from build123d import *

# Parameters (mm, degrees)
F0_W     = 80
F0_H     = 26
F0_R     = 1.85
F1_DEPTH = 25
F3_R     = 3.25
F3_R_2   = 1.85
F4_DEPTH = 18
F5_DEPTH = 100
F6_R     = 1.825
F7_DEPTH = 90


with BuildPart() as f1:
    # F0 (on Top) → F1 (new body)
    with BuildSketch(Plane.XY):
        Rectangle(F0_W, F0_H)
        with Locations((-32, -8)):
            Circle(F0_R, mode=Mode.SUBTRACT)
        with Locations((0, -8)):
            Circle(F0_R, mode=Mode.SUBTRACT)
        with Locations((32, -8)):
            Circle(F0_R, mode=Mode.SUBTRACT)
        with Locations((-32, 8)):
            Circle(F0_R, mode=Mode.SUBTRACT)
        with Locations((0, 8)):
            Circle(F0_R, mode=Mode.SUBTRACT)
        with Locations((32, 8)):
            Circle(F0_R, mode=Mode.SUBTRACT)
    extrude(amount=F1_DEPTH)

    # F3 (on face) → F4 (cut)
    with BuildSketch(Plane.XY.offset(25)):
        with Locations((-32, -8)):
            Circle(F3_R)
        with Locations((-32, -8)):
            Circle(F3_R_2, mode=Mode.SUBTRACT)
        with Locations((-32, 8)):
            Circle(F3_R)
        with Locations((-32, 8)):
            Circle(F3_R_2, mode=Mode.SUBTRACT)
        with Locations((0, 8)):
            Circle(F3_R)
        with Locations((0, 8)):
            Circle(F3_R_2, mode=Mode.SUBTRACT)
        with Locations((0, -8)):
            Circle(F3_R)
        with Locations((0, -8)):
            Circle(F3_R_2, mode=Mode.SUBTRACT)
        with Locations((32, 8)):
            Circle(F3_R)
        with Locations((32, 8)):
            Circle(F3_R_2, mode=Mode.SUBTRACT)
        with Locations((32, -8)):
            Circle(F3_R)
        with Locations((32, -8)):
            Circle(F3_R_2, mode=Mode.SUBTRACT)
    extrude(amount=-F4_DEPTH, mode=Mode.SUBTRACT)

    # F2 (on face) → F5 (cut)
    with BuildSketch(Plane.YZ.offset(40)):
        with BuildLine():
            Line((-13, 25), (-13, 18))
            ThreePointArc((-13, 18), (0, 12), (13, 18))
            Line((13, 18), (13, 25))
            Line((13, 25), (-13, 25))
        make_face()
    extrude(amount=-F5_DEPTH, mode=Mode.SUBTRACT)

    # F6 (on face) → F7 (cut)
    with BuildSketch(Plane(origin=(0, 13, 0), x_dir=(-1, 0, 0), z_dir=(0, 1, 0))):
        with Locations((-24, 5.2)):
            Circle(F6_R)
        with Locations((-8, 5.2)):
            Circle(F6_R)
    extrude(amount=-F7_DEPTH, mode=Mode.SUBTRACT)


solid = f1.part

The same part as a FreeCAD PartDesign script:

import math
import FreeCAD as App
import Part
import Sketcher
Q = App.Units.Quantity

doc = App.newDocument("Part")
body = doc.addObject("PartDesign::Body", "Body")

# Sketch on XY plane
sketch1 = doc.addObject("Sketcher::SketchObject", "Sketch")
body.addObject(sketch1)
sketch1.AttachmentSupport = (doc.XY_Plane, [""])
sketch1.MapMode = "FlatFace"
sketch1.addGeometry([
    Part.LineSegment(App.Vector(-40, 13, 0), App.Vector(-40, -13, 0)),  # 0
    Part.LineSegment(App.Vector(-40, -13, 0), App.Vector(40, -13, 0)),  # 1
    Part.LineSegment(App.Vector(40, -13, 0), App.Vector(40, 13, 0)),  # 2
    Part.LineSegment(App.Vector(40, 13, 0), App.Vector(-40, 13, 0)),  # 3
    Part.Circle(App.Vector(-32, -8, 0), App.Vector(0, 0, 1), 1.9),  # 4
    Part.Circle(App.Vector(0, -8, 0), App.Vector(0, 0, 1), 1.9),  # 5
    Part.Circle(App.Vector(32, -8, 0), App.Vector(0, 0, 1), 1.9),  # 6
    Part.Circle(App.Vector(-32, 8, 0), App.Vector(0, 0, 1), 1.9),  # 7
    Part.Circle(App.Vector(0, 8, 0), App.Vector(0, 0, 1), 1.9),  # 8
    Part.Circle(App.Vector(32, 8, 0), App.Vector(0, 0, 1), 1.9),  # 9
], False)
sketch1.addConstraint([
    Sketcher.Constraint("Coincident", 0, 2, 1, 1),
    Sketcher.Constraint("Coincident", 1, 2, 2, 1),
    Sketcher.Constraint("Coincident", 2, 2, 3, 1),
    Sketcher.Constraint("Coincident", 3, 2, 0, 1),
    Sketcher.Constraint("Vertical", 0),
    Sketcher.Constraint("Horizontal", 1),
    Sketcher.Constraint("Vertical", 2),
    Sketcher.Constraint("Horizontal", 3),
    Sketcher.Constraint("Equal", 4, 5),
    Sketcher.Constraint("Equal", 5, 6),
    Sketcher.Constraint("Equal", 6, 7),
    Sketcher.Constraint("Equal", 7, 8),
    Sketcher.Constraint("Equal", 8, 9),
    Sketcher.Constraint("Symmetric", 6, 3, 7, 3, -1, 1),
    Sketcher.Constraint("Symmetric", 5, 3, 8, 3, -1, 1),
    Sketcher.Constraint("Symmetric", 4, 3, 9, 3, -1, 1),
    Sketcher.Constraint("Symmetric", 0, 2, 2, 2, -1, 1),
    Sketcher.Constraint("Symmetric", 4, 3, 6, 3, -2),
    Sketcher.Constraint("PointOnObject", 5, 3, -2),
    Sketcher.Constraint("Horizontal", 4, 3, 5, 3),
    Sketcher.Constraint("Diameter", 4, Q("3.7 mm")),
    Sketcher.Constraint("DistanceX", 1, 1, 1, 2, Q("80 mm")),
    Sketcher.Constraint("DistanceY", 0, 2, 0, 1, Q("26 mm")),
    Sketcher.Constraint("DistanceX", 4, 3, -1, 1, Q("32 mm")),
    Sketcher.Constraint("DistanceY", 4, 3, -1, 1, Q("8 mm")),
])
pad1 = doc.addObject("PartDesign::Pad", "Pad")
body.addObject(pad1)
pad1.Profile = sketch1
pad1.Length = 25

# Sketch on XY plane
sketch2 = doc.addObject("Sketcher::SketchObject", "Sketch001")
body.addObject(sketch2)
sketch2.AttachmentSupport = (doc.XY_Plane, [""])
sketch2.MapMode = "FlatFace"
sketch2.AttachmentOffset = App.Placement(App.Vector(0, 0, 25), App.Rotation())
sketch2.addGeometry([
    Part.Circle(App.Vector(-32, -8, 0), App.Vector(0, 0, 1), 3.2),  # 0
    Part.Circle(App.Vector(-32, -8, 0), App.Vector(0, 0, 1), 1.9),  # 1
    Part.Circle(App.Vector(-32, 8, 0), App.Vector(0, 0, 1), 3.2),  # 2
    Part.Circle(App.Vector(-32, 8, 0), App.Vector(0, 0, 1), 1.9),  # 3
    Part.Circle(App.Vector(0, 8, 0), App.Vector(0, 0, 1), 3.2),  # 4
    Part.Circle(App.Vector(0, 8, 0), App.Vector(0, 0, 1), 1.9),  # 5
    Part.Circle(App.Vector(0, -8, 0), App.Vector(0, 0, 1), 3.2),  # 6
    Part.Circle(App.Vector(0, -8, 0), App.Vector(0, 0, 1), 1.9),  # 7
    Part.Circle(App.Vector(32, 8, 0), App.Vector(0, 0, 1), 3.2),  # 8
    Part.Circle(App.Vector(32, 8, 0), App.Vector(0, 0, 1), 1.9),  # 9
    Part.Circle(App.Vector(32, -8, 0), App.Vector(0, 0, 1), 3.2),  # 10
    Part.Circle(App.Vector(32, -8, 0), App.Vector(0, 0, 1), 1.9),  # 11
], False)
sketch2.addConstraint([
    Sketcher.Constraint("Coincident", 1, 3, 0, 3),
    Sketcher.Constraint("Coincident", 3, 3, 2, 3),
    Sketcher.Constraint("Coincident", 5, 3, 4, 3),
    Sketcher.Constraint("Coincident", 7, 3, 6, 3),
    Sketcher.Constraint("Coincident", 9, 3, 8, 3),
    Sketcher.Constraint("Coincident", 11, 3, 10, 3),
    Sketcher.Constraint("Equal", 0, 2),
    Sketcher.Constraint("Equal", 1, 3),
    Sketcher.Constraint("Equal", 2, 4),
    Sketcher.Constraint("Equal", 3, 5),
    Sketcher.Constraint("Equal", 4, 6),
    Sketcher.Constraint("Equal", 5, 7),
    Sketcher.Constraint("Equal", 6, 8),
    Sketcher.Constraint("Equal", 7, 9),
    Sketcher.Constraint("Equal", 8, 10),
    Sketcher.Constraint("Equal", 9, 11),
    Sketcher.Constraint("Symmetric", 4, 3, 6, 3, -1, 1),
    Sketcher.Constraint("Symmetric", 0, 3, 8, 3, -1, 1),
    Sketcher.Constraint("Symmetric", 2, 3, 10, 3, -1, 1),
    Sketcher.Constraint("Symmetric", 2, 3, 8, 3, -2),
    Sketcher.Constraint("PointOnObject", 4, 3, -2),
    Sketcher.Constraint("Horizontal", 3, 3, 4, 3),
    Sketcher.Constraint("Diameter", 0, Q("6.5 mm")),
    Sketcher.Constraint("Diameter", 1, Q("3.7 mm")),
    Sketcher.Constraint("DistanceX", 0, 3, -1, 1, Q("32 mm")),
    Sketcher.Constraint("DistanceY", 0, 3, -1, 1, Q("8 mm")),
])
pocket1 = doc.addObject("PartDesign::Pocket", "Pocket")
body.addObject(pocket1)
pocket1.Profile = sketch2
pocket1.Length = 18

# Sketch on YZ plane
sketch3 = doc.addObject("Sketcher::SketchObject", "Sketch002")
body.addObject(sketch3)
sketch3.AttachmentSupport = (doc.YZ_Plane, [""])
sketch3.MapMode = "FlatFace"
sketch3.AttachmentOffset = App.Placement(App.Vector(0, 0, 40), App.Rotation())
sketch3.addGeometry([
    Part.LineSegment(App.Vector(-13, 25, 0), App.Vector(-13, 18, 0)),
    Part.ArcOfCircle(Part.Circle(App.Vector(0, 29, 0), App.Vector(0, 0, 1), 17), math.radians(-140), math.radians(-40)),
    Part.LineSegment(App.Vector(13, 18, 0), App.Vector(13, 25, 0)),
    Part.LineSegment(App.Vector(13, 25, 0), App.Vector(-13, 25, 0)),
], False)
sketch3.addConstraint([
    Sketcher.Constraint("Coincident", 0, 2, 1, 1),
    Sketcher.Constraint("Coincident", 1, 2, 2, 1),
    Sketcher.Constraint("Coincident", 2, 2, 3, 1),
    Sketcher.Constraint("Coincident", 3, 2, 0, 1),
    Sketcher.Constraint("Vertical", 0),
    Sketcher.Constraint("Vertical", 2),
    Sketcher.Constraint("Horizontal", 3),
    Sketcher.Constraint("Symmetric", 0, 2, 1, 2, -2),
    Sketcher.Constraint("DistanceX", 3, 2, 3, 1, Q("26 mm")),
    Sketcher.Constraint("DistanceY", 0, 2, 0, 1, Q("7 mm")),
    Sketcher.Constraint("DistanceY", -1, 1, 0, 2, Q("18 mm")),
    Sketcher.Constraint("Radius", 1, Q("17.083333 mm")),
])
pocket2 = doc.addObject("PartDesign::Pocket", "Pocket001")
body.addObject(pocket2)
pocket2.Profile = sketch3
pocket2.Length = 100

# Sketch on XZ plane
sketch4 = doc.addObject("Sketcher::SketchObject", "Sketch003")
body.addObject(sketch4)
sketch4.AttachmentSupport = (doc.XZ_Plane, [""])
sketch4.MapMode = "FlatFace"
sketch4.AttachmentOffset = App.Placement(App.Vector(0, 0, -13), App.Rotation())
sketch4.addGeometry([
    Part.Circle(App.Vector(24, 5.2, 0), App.Vector(0, 0, 1), 1.8),
    Part.Circle(App.Vector(8, 5.2, 0), App.Vector(0, 0, 1), 1.8),
], False)
sketch4.addConstraint([
    Sketcher.Constraint("Equal", 0, 1),
    Sketcher.Constraint("Horizontal", 0, 3, 1, 3),
    Sketcher.Constraint("Diameter", 0, Q("3.65 mm")),
    Sketcher.Constraint("DistanceX", -1, 1, 0, 3, Q("24 mm")),
    Sketcher.Constraint("DistanceX", -1, 1, 1, 3, Q("8 mm")),
    Sketcher.Constraint("DistanceY", -1, 1, 0, 3, Q("5.2 mm")),
])
pocket3 = doc.addObject("PartDesign::Pocket", "Pocket002")
body.addObject(pocket3)
pocket3.Profile = sketch4
pocket3.Length = 90
pocket3.Reversed = True

doc.recompute()
